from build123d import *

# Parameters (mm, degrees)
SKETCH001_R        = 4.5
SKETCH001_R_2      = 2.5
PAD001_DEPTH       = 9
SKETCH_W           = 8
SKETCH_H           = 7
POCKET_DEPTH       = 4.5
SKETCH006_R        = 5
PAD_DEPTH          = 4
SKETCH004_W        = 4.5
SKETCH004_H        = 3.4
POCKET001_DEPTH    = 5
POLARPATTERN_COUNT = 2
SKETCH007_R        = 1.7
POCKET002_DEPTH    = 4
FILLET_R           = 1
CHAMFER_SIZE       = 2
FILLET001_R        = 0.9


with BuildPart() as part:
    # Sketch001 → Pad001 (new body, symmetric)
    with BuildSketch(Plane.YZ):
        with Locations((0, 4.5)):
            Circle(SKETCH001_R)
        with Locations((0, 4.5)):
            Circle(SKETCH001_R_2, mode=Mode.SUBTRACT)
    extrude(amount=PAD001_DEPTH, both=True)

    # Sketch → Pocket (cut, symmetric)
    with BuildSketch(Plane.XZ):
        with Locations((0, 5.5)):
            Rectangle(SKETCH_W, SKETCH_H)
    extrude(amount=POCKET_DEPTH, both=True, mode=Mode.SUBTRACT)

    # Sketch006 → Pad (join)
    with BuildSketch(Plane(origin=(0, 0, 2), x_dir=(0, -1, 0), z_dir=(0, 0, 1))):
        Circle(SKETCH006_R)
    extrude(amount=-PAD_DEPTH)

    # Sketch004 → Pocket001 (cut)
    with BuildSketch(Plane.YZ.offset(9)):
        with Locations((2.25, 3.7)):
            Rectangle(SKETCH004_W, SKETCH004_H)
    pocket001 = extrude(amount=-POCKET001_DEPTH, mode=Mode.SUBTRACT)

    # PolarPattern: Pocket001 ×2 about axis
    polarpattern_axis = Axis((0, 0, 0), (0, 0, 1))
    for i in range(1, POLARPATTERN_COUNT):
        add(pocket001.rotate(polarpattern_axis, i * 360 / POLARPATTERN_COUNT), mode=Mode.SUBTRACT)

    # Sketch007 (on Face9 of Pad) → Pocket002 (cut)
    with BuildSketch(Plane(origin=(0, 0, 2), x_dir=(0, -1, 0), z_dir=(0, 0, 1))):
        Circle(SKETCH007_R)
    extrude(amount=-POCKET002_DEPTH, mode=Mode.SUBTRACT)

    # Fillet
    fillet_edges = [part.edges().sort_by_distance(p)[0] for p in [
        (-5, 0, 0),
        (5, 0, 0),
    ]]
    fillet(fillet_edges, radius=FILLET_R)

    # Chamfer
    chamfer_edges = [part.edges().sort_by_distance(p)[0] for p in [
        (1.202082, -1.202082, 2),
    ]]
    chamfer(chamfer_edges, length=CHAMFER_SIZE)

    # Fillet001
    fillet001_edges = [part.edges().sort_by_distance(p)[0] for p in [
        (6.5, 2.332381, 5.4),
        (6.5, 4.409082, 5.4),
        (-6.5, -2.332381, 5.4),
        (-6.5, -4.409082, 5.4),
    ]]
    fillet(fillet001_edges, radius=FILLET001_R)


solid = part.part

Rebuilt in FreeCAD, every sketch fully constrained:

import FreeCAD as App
import Part
import Sketcher

V = App.Vector


def edges_at(feature, points):
    """Names of the edges that pass closest to the given points."""
    edges = feature.Shape.Edges
    near = lambda p: min(range(len(edges)), key=lambda i: edges[i].distToShape(Part.Vertex(*p))[0])
    return sorted({f"Edge{near(p) + 1}" for p in points})


def add_polygon(sketch, points):
    """Adds a closed chain of lines whose ends are joined by coincident constraints."""
    first, n = sketch.GeometryCount, len(points)
    for a, b in zip(points, points[1:] + points[:1]):
        sketch.addGeometry(Part.LineSegment(App.Vector(*a, 0), App.Vector(*b, 0)), False)
    for i in range(n):
        sketch.addConstraint(Sketcher.Constraint("Coincident", first + i, 2, first + (i + 1) % n, 1))

doc = App.newDocument("Part")
body = doc.addObject("PartDesign::Body", "Body")

sketch1 = doc.addObject("Sketcher::SketchObject", "Sketch")
body.addObject(sketch1)
sketch1.AttachmentSupport = (doc.YZ_Plane, [""])
sketch1.MapMode = "FlatFace"
sketch1.addGeometry(Part.Circle(V(0, 4.5, 0), V(0, 0, 1), 4.5), False)
sketch1.addGeometry(Part.Circle(V(0, 4.5, 0), V(0, 0, 1), 2.5), False)
sketch1.addConstraint(Sketcher.Constraint("Coincident", 1, 3, 0, 3))
sketch1.addConstraint(Sketcher.Constraint("PointOnObject", 0, 3, -2))
sketch1.addConstraint(Sketcher.Constraint("Diameter", 0, 9.0))
sketch1.addConstraint(Sketcher.Constraint("Diameter", 1, 5.0))
sketch1.addConstraint(Sketcher.Constraint("DistanceY", -1, 1, 0, 3, 4.5))
pad1 = doc.addObject("PartDesign::Pad", "Pad")
body.addObject(pad1)
pad1.Profile = sketch1
pad1.Length = 18
pad1.Midplane = True

sketch2 = doc.addObject("Sketcher::SketchObject", "Sketch001")
body.addObject(sketch2)
sketch2.AttachmentSupport = (doc.XZ_Plane, [""])
sketch2.MapMode = "FlatFace"
add_polygon(sketch2, [(-4, 9), (-4, 2), (4, 2), (4, 9)])
sketch2.addConstraint(Sketcher.Constraint("Vertical", 0))
sketch2.addConstraint(Sketcher.Constraint("Horizontal", 1))
sketch2.addConstraint(Sketcher.Constraint("Vertical", 2))
sketch2.addConstraint(Sketcher.Constraint("Horizontal", 3))
sketch2.addConstraint(Sketcher.Constraint("DistanceX", 1, 1, 1, 2, 8.0))
sketch2.addConstraint(Sketcher.Constraint("DistanceY", 0, 2, 0, 1, 7.0))
sketch2.addConstraint(Sketcher.Constraint("DistanceX", 0, 2, -1, 1, 4.0))
sketch2.addConstraint(Sketcher.Constraint("DistanceY", -1, 1, 0, 2, 2.0))
pocket1 = doc.addObject("PartDesign::Pocket", "Pocket")
body.addObject(pocket1)
pocket1.Profile = sketch2
pocket1.Length = 9
pocket1.Midplane = True

sketch3 = doc.addObject("Sketcher::SketchObject", "Sketch002")
body.addObject(sketch3)
sketch3.AttachmentSupport = (doc.XY_Plane, [""])
sketch3.MapMode = "FlatFace"
sketch3.AttachmentOffset = App.Placement(V(0, 0, 2), App.Rotation())
sketch3.addGeometry(Part.Circle(V(0, 0, 0), V(0, 0, 1), 5), False)
sketch3.addConstraint(Sketcher.Constraint("Coincident", 0, 3, -1, 1))
sketch3.addConstraint(Sketcher.Constraint("Diameter", 0, 10.0))
pad2 = doc.addObject("PartDesign::Pad", "Pad001")
body.addObject(pad2)
pad2.Profile = sketch3
pad2.Length = 4
pad2.Reversed = True

sketch4 = doc.addObject("Sketcher::SketchObject", "Sketch003")
body.addObject(sketch4)
sketch4.AttachmentSupport = (doc.YZ_Plane, [""])
sketch4.MapMode = "FlatFace"
sketch4.AttachmentOffset = App.Placement(V(0, 0, 9), App.Rotation())
add_polygon(sketch4, [(0, 5.4), (0, 2), (4.5, 2), (4.5, 5.4)])
sketch4.addConstraint(Sketcher.Constraint("Vertical", 0))
sketch4.addConstraint(Sketcher.Constraint("Horizontal", 1))
sketch4.addConstraint(Sketcher.Constraint("Vertical", 2))
sketch4.addConstraint(Sketcher.Constraint("Horizontal", 3))
sketch4.addConstraint(Sketcher.Constraint("PointOnObject", 0, 2, -2))
sketch4.addConstraint(Sketcher.Constraint("DistanceX", 1, 1, 1, 2, 4.5))
sketch4.addConstraint(Sketcher.Constraint("DistanceY", 0, 2, 0, 1, 3.4))
sketch4.addConstraint(Sketcher.Constraint("DistanceY", -1, 1, 0, 2, 2.0))
pocket2 = doc.addObject("PartDesign::Pocket", "Pocket001")
body.addObject(pocket2)
pocket2.Profile = sketch4
pocket2.Length = 5
doc.recompute()

polarpattern = doc.addObject("PartDesign::PolarPattern", "PolarPattern")
body.addObject(polarpattern)
polarpattern.Originals = [pocket2]
polarpattern.Axis = (doc.Z_Axis, [""])
polarpattern.Angle = 360
polarpattern.Occurrences = 2
body.Tip = polarpattern

sketch5 = doc.addObject("Sketcher::SketchObject", "Sketch004")
body.addObject(sketch5)
sketch5.AttachmentSupport = (doc.XY_Plane, [""])
sketch5.MapMode = "FlatFace"
sketch5.AttachmentOffset = App.Placement(V(0, 0, 2), App.Rotation())
sketch5.addGeometry(Part.Circle(V(0, 0, 0), V(0, 0, 1), 1.7), False)
sketch5.addConstraint(Sketcher.Constraint("Coincident", 0, 3, -1, 1))
sketch5.addConstraint(Sketcher.Constraint("Diameter", 0, 3.4))
pocket3 = doc.addObject("PartDesign::Pocket", "Pocket002")
body.addObject(pocket3)
pocket3.Profile = sketch5
pocket3.Length = 4
doc.recompute()

fillet = doc.addObject("PartDesign::Fillet", "Fillet")
body.addObject(fillet)
fillet.Base = (pocket3, edges_at(pocket3, [(-5, 0, 0), (5, 0, 0)]))
fillet.Radius = 1
doc.recompute()

chamfer = doc.addObject("PartDesign::Chamfer", "Chamfer")
body.addObject(chamfer)
chamfer.Base = (fillet, edges_at(fillet, [(0, 1.7, 2)]))
chamfer.Size = 2
doc.recompute()

fillet2 = doc.addObject("PartDesign::Fillet", "Fillet001")
body.addObject(fillet2)
fillet2.Base = (chamfer, edges_at(chamfer, [
    (6.5, 2.332, 5.4),
    (6.5, 4.409, 5.4),
    (-6.5, -2.332, 5.4),
    (-6.5, -4.409, 5.4),
]))
fillet2.Radius = 0.9

doc.recompute()
